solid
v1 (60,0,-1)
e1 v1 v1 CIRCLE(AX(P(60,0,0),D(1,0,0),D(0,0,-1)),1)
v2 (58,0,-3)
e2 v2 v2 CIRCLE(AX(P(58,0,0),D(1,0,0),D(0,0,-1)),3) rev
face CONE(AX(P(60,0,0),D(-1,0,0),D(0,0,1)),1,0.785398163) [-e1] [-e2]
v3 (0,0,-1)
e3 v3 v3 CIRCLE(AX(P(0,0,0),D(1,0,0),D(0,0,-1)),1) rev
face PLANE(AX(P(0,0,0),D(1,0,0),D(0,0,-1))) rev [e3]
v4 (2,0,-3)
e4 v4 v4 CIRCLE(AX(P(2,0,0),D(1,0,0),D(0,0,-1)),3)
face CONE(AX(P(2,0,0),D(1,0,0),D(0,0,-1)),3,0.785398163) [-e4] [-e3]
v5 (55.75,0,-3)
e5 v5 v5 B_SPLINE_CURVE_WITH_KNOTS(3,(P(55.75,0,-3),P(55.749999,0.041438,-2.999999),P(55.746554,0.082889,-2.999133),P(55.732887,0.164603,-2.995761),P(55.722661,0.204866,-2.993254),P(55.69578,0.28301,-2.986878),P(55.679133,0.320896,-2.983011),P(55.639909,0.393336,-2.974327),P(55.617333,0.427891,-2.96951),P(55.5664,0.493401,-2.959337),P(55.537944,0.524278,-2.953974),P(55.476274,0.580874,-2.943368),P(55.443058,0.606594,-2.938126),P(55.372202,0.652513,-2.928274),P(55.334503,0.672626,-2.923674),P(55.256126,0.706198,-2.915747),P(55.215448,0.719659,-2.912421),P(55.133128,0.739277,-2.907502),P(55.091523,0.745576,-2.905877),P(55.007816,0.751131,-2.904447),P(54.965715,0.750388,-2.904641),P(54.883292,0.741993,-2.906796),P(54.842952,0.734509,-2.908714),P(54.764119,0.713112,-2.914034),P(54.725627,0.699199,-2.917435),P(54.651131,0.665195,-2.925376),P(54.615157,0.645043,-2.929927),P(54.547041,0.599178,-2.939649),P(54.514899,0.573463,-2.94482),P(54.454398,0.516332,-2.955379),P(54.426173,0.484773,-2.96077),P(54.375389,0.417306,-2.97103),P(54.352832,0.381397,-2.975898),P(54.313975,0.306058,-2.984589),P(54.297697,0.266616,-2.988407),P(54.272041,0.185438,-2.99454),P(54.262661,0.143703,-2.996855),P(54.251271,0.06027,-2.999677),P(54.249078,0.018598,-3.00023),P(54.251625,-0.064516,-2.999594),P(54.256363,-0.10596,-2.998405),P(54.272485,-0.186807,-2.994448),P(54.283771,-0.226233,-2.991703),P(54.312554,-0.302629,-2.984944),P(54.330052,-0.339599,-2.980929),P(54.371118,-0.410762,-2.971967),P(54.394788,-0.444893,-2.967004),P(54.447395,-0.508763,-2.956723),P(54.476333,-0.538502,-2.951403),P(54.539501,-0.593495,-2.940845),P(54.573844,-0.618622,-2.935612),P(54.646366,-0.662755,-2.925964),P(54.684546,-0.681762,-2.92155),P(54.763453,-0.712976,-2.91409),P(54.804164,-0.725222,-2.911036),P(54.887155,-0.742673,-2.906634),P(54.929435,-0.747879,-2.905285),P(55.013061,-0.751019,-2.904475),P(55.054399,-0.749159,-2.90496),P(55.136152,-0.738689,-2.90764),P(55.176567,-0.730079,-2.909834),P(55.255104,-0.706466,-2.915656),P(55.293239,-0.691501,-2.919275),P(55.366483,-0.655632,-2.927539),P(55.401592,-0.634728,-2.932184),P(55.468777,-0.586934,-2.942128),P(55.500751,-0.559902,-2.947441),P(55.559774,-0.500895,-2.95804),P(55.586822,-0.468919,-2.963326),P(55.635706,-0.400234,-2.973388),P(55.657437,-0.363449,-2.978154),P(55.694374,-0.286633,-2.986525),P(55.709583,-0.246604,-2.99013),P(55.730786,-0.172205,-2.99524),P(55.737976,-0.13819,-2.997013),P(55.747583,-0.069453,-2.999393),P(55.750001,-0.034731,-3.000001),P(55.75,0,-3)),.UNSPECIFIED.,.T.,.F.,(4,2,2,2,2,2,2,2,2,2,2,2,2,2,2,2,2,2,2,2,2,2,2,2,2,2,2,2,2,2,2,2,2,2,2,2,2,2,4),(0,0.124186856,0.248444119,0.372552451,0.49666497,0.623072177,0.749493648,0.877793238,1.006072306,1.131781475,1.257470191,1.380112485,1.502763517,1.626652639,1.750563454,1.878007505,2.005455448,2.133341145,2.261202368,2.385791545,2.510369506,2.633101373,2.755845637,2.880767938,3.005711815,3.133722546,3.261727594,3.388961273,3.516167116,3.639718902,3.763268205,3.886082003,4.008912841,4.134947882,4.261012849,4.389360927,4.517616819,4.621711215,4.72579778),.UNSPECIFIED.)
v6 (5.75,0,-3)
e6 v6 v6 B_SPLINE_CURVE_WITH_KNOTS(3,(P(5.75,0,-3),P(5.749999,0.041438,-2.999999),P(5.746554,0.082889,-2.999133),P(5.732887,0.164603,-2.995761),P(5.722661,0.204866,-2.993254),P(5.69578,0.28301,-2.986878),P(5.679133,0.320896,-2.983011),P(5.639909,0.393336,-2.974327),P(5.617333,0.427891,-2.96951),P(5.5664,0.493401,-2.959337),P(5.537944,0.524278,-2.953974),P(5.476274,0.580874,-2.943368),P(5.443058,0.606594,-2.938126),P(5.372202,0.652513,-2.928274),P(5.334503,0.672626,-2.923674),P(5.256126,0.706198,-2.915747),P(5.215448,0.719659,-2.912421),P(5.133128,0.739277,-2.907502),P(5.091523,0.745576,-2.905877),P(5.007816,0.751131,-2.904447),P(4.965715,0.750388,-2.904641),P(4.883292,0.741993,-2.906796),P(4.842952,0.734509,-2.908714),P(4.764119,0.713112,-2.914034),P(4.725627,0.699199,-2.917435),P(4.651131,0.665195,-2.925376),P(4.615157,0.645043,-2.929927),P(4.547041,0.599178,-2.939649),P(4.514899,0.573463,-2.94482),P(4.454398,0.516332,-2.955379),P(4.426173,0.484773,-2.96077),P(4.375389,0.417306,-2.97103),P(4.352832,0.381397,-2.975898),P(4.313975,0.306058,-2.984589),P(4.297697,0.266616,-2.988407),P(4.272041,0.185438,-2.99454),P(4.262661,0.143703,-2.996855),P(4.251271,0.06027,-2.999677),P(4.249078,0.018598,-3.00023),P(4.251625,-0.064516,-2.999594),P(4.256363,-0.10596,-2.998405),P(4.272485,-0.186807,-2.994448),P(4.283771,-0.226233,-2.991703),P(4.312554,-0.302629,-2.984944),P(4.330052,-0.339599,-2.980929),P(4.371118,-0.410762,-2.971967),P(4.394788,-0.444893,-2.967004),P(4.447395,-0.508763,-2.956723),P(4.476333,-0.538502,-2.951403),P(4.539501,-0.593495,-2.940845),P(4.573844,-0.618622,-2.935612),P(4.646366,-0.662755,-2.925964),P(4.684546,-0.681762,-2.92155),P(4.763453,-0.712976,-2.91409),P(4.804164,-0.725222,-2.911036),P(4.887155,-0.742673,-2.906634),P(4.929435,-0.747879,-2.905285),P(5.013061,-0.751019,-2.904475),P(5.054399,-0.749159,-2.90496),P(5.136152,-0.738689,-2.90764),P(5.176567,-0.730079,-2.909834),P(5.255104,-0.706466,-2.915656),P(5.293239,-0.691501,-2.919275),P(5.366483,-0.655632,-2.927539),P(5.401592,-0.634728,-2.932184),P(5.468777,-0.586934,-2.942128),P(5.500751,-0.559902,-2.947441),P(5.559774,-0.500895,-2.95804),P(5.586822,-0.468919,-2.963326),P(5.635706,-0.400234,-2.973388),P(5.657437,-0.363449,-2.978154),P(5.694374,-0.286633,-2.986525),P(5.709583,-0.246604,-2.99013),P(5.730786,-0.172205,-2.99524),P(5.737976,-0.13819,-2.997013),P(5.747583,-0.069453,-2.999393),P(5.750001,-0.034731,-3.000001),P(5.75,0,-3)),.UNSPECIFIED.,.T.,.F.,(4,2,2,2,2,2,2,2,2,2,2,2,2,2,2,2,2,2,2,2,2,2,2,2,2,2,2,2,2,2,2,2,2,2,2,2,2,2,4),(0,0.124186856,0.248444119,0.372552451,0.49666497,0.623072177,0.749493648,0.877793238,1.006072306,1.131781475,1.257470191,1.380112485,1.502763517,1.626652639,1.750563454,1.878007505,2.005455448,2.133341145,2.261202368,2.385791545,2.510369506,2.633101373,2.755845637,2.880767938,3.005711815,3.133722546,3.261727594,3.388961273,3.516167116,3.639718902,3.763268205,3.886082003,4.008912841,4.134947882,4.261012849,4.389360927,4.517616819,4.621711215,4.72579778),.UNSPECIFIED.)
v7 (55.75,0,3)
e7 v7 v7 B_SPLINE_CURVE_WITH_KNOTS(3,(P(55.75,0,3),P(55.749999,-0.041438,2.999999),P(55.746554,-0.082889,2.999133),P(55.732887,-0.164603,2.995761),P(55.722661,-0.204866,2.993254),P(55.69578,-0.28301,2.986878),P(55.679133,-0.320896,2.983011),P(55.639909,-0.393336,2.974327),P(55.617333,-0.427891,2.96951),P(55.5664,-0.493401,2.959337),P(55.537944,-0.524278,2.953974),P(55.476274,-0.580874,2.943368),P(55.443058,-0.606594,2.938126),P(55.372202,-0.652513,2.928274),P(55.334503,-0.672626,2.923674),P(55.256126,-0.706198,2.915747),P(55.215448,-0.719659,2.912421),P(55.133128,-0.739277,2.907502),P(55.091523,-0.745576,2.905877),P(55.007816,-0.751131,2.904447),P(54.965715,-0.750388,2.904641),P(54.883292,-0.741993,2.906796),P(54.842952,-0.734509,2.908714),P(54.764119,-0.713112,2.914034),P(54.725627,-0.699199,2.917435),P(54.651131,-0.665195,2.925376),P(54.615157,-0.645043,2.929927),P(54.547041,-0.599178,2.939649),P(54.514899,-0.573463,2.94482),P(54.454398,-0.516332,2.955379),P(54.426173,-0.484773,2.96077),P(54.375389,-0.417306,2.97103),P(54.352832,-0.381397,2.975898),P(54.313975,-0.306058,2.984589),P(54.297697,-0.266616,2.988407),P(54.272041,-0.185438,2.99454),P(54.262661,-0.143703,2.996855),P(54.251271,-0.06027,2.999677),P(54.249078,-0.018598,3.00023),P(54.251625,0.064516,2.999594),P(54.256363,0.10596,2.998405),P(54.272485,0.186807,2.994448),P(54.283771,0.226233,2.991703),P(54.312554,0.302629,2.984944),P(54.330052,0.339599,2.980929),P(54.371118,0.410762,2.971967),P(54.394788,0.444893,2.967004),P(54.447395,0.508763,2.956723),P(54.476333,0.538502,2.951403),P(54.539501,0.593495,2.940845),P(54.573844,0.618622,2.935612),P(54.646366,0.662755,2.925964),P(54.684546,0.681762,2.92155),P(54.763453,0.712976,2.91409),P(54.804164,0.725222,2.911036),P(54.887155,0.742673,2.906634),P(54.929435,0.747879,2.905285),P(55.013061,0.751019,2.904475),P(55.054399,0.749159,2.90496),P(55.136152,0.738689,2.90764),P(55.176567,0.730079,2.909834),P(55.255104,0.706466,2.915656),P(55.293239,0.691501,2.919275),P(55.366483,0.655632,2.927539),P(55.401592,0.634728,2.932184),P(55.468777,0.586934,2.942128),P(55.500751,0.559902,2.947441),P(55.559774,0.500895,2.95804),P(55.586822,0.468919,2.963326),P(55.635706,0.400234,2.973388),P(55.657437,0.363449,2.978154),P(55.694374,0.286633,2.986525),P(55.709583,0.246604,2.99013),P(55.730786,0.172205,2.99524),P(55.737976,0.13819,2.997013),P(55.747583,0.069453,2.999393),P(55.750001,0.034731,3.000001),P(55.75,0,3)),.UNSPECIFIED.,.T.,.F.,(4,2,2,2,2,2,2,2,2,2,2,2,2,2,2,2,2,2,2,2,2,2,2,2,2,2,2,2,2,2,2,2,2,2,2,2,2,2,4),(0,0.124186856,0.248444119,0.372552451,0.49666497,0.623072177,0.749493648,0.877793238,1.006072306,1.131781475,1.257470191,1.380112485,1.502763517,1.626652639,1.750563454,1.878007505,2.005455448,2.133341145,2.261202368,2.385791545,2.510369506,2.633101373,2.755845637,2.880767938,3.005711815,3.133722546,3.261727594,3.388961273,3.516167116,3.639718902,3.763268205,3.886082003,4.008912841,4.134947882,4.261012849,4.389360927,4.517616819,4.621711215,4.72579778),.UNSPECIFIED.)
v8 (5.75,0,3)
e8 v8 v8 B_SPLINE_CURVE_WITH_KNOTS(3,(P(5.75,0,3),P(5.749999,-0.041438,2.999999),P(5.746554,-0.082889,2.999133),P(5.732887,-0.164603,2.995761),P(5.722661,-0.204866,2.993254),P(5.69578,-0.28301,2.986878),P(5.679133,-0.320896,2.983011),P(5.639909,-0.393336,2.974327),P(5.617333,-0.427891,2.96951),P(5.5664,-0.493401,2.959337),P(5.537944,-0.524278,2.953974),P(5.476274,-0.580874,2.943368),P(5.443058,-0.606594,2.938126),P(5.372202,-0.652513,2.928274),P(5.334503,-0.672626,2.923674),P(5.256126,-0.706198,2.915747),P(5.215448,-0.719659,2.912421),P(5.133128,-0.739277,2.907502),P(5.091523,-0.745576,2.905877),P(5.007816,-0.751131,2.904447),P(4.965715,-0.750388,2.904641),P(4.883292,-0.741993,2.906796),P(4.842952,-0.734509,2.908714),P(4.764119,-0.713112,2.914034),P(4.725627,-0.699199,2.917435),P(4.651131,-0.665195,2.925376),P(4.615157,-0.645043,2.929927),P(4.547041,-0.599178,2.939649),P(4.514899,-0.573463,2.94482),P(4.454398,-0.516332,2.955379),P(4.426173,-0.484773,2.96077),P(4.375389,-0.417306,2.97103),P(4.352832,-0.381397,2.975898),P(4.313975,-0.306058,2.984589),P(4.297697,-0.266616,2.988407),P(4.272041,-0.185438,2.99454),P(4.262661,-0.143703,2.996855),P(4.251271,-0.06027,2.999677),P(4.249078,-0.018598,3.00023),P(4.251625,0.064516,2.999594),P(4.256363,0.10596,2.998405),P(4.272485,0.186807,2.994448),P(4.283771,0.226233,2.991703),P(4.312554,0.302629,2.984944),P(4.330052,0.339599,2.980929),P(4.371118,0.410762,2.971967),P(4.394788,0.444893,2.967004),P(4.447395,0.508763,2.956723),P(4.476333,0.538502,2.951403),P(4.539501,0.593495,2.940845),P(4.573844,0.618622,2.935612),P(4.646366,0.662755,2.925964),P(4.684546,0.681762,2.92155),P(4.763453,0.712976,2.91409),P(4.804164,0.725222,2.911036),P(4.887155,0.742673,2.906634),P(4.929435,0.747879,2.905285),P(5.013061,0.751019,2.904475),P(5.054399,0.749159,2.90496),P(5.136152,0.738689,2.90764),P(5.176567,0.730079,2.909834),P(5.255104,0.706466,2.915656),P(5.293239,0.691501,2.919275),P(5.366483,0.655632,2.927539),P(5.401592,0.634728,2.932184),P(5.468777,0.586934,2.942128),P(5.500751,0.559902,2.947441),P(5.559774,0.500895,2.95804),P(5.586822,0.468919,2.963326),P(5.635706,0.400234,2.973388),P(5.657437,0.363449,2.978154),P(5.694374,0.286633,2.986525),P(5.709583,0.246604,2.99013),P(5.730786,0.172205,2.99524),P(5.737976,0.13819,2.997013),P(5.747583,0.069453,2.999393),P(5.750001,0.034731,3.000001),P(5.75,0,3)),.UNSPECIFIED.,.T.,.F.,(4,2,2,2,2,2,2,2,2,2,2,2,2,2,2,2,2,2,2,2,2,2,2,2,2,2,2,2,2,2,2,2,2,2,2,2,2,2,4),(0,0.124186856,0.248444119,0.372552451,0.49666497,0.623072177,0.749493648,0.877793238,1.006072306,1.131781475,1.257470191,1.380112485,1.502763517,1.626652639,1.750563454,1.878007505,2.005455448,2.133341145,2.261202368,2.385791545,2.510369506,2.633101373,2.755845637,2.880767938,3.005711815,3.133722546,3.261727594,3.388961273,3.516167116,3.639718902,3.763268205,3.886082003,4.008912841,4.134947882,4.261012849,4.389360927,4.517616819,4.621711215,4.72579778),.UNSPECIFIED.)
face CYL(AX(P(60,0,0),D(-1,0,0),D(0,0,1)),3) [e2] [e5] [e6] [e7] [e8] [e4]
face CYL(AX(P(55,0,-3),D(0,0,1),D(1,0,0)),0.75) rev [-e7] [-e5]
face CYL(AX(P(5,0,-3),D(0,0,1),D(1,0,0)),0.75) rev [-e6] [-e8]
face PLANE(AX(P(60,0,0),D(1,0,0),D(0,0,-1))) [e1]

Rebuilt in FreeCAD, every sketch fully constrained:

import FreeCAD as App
import Part
import Sketcher
from FreeCAD import Vector
Q = App.Units.Quantity


def edges_at(feature, points):
    """Names of the edges that pass closest to the given points."""
    edges = feature.Shape.Edges
    near = lambda p: min(range(len(edges)), key=lambda i: edges[i].distToShape(Part.Vertex(*p))[0])
    return sorted({f"Edge{near(p) + 1}" for p in points})

doc = App.newDocument("Part")
body = doc.addObject("PartDesign::Body", "Body")

sketch1 = doc.addObject("Sketcher::SketchObject", "Sketch")
body.addObject(sketch1)
sketch1.AttachmentSupport = (doc.YZ_Plane, [""])
sketch1.MapMode = "FlatFace"
sketch1.addGeometry(Part.Circle(Vector(0, 0, 0), Vector(0, 0, 1), 3), False)
sketch1.addConstraint(Sketcher.Constraint("Coincident", 0, 3, -1, 1))
sketch1.addConstraint(Sketcher.Constraint("Diameter", 0, Q("6 mm")))
pad1 = doc.addObject("PartDesign::Pad", "Pad")
body.addObject(pad1)
pad1.Profile = sketch1
pad1.Length = 60
doc.recompute()

chamfer = doc.addObject("PartDesign::Chamfer", "Chamfer")
body.addObject(chamfer)
chamfer.Base = (pad1, edges_at(pad1, [(0, 0, 3), (60, 0, 3)]))
chamfer.Size = 2

sketch2 = doc.addObject("Sketcher::SketchObject", "Sketch001")
body.addObject(sketch2)
sketch2.AttachmentSupport = (doc.XY_Plane, [""])
sketch2.MapMode = "FlatFace"
sketch2.addGeometry(Part.Circle(Vector(5, 0, 0), Vector(0, 0, 1), 0.8), False)
sketch2.addGeometry(Part.Circle(Vector(55, 0, 0), Vector(0, 0, 1), 0.8), False)
sketch2.addConstraint(Sketcher.Constraint("Equal", 0, 1))
sketch2.addConstraint(Sketcher.Constraint("PointOnObject", 0, 3, -1))
sketch2.addConstraint(Sketcher.Constraint("PointOnObject", 1, 3, -1))
sketch2.addConstraint(Sketcher.Constraint("Diameter", 0, Q("1.5 mm")))
sketch2.addConstraint(Sketcher.Constraint("DistanceX", -1, 1, 0, 3, Q("5 mm")))
sketch2.addConstraint(Sketcher.Constraint("DistanceX", -1, 1, 1, 3, Q("55 mm")))
pocket1 = doc.addObject("PartDesign::Pocket", "Pocket")
body.addObject(pocket1)
pocket1.Profile = sketch2
pocket1.Type = "ThroughAll"
pocket1.Midplane = True

doc.recompute()
